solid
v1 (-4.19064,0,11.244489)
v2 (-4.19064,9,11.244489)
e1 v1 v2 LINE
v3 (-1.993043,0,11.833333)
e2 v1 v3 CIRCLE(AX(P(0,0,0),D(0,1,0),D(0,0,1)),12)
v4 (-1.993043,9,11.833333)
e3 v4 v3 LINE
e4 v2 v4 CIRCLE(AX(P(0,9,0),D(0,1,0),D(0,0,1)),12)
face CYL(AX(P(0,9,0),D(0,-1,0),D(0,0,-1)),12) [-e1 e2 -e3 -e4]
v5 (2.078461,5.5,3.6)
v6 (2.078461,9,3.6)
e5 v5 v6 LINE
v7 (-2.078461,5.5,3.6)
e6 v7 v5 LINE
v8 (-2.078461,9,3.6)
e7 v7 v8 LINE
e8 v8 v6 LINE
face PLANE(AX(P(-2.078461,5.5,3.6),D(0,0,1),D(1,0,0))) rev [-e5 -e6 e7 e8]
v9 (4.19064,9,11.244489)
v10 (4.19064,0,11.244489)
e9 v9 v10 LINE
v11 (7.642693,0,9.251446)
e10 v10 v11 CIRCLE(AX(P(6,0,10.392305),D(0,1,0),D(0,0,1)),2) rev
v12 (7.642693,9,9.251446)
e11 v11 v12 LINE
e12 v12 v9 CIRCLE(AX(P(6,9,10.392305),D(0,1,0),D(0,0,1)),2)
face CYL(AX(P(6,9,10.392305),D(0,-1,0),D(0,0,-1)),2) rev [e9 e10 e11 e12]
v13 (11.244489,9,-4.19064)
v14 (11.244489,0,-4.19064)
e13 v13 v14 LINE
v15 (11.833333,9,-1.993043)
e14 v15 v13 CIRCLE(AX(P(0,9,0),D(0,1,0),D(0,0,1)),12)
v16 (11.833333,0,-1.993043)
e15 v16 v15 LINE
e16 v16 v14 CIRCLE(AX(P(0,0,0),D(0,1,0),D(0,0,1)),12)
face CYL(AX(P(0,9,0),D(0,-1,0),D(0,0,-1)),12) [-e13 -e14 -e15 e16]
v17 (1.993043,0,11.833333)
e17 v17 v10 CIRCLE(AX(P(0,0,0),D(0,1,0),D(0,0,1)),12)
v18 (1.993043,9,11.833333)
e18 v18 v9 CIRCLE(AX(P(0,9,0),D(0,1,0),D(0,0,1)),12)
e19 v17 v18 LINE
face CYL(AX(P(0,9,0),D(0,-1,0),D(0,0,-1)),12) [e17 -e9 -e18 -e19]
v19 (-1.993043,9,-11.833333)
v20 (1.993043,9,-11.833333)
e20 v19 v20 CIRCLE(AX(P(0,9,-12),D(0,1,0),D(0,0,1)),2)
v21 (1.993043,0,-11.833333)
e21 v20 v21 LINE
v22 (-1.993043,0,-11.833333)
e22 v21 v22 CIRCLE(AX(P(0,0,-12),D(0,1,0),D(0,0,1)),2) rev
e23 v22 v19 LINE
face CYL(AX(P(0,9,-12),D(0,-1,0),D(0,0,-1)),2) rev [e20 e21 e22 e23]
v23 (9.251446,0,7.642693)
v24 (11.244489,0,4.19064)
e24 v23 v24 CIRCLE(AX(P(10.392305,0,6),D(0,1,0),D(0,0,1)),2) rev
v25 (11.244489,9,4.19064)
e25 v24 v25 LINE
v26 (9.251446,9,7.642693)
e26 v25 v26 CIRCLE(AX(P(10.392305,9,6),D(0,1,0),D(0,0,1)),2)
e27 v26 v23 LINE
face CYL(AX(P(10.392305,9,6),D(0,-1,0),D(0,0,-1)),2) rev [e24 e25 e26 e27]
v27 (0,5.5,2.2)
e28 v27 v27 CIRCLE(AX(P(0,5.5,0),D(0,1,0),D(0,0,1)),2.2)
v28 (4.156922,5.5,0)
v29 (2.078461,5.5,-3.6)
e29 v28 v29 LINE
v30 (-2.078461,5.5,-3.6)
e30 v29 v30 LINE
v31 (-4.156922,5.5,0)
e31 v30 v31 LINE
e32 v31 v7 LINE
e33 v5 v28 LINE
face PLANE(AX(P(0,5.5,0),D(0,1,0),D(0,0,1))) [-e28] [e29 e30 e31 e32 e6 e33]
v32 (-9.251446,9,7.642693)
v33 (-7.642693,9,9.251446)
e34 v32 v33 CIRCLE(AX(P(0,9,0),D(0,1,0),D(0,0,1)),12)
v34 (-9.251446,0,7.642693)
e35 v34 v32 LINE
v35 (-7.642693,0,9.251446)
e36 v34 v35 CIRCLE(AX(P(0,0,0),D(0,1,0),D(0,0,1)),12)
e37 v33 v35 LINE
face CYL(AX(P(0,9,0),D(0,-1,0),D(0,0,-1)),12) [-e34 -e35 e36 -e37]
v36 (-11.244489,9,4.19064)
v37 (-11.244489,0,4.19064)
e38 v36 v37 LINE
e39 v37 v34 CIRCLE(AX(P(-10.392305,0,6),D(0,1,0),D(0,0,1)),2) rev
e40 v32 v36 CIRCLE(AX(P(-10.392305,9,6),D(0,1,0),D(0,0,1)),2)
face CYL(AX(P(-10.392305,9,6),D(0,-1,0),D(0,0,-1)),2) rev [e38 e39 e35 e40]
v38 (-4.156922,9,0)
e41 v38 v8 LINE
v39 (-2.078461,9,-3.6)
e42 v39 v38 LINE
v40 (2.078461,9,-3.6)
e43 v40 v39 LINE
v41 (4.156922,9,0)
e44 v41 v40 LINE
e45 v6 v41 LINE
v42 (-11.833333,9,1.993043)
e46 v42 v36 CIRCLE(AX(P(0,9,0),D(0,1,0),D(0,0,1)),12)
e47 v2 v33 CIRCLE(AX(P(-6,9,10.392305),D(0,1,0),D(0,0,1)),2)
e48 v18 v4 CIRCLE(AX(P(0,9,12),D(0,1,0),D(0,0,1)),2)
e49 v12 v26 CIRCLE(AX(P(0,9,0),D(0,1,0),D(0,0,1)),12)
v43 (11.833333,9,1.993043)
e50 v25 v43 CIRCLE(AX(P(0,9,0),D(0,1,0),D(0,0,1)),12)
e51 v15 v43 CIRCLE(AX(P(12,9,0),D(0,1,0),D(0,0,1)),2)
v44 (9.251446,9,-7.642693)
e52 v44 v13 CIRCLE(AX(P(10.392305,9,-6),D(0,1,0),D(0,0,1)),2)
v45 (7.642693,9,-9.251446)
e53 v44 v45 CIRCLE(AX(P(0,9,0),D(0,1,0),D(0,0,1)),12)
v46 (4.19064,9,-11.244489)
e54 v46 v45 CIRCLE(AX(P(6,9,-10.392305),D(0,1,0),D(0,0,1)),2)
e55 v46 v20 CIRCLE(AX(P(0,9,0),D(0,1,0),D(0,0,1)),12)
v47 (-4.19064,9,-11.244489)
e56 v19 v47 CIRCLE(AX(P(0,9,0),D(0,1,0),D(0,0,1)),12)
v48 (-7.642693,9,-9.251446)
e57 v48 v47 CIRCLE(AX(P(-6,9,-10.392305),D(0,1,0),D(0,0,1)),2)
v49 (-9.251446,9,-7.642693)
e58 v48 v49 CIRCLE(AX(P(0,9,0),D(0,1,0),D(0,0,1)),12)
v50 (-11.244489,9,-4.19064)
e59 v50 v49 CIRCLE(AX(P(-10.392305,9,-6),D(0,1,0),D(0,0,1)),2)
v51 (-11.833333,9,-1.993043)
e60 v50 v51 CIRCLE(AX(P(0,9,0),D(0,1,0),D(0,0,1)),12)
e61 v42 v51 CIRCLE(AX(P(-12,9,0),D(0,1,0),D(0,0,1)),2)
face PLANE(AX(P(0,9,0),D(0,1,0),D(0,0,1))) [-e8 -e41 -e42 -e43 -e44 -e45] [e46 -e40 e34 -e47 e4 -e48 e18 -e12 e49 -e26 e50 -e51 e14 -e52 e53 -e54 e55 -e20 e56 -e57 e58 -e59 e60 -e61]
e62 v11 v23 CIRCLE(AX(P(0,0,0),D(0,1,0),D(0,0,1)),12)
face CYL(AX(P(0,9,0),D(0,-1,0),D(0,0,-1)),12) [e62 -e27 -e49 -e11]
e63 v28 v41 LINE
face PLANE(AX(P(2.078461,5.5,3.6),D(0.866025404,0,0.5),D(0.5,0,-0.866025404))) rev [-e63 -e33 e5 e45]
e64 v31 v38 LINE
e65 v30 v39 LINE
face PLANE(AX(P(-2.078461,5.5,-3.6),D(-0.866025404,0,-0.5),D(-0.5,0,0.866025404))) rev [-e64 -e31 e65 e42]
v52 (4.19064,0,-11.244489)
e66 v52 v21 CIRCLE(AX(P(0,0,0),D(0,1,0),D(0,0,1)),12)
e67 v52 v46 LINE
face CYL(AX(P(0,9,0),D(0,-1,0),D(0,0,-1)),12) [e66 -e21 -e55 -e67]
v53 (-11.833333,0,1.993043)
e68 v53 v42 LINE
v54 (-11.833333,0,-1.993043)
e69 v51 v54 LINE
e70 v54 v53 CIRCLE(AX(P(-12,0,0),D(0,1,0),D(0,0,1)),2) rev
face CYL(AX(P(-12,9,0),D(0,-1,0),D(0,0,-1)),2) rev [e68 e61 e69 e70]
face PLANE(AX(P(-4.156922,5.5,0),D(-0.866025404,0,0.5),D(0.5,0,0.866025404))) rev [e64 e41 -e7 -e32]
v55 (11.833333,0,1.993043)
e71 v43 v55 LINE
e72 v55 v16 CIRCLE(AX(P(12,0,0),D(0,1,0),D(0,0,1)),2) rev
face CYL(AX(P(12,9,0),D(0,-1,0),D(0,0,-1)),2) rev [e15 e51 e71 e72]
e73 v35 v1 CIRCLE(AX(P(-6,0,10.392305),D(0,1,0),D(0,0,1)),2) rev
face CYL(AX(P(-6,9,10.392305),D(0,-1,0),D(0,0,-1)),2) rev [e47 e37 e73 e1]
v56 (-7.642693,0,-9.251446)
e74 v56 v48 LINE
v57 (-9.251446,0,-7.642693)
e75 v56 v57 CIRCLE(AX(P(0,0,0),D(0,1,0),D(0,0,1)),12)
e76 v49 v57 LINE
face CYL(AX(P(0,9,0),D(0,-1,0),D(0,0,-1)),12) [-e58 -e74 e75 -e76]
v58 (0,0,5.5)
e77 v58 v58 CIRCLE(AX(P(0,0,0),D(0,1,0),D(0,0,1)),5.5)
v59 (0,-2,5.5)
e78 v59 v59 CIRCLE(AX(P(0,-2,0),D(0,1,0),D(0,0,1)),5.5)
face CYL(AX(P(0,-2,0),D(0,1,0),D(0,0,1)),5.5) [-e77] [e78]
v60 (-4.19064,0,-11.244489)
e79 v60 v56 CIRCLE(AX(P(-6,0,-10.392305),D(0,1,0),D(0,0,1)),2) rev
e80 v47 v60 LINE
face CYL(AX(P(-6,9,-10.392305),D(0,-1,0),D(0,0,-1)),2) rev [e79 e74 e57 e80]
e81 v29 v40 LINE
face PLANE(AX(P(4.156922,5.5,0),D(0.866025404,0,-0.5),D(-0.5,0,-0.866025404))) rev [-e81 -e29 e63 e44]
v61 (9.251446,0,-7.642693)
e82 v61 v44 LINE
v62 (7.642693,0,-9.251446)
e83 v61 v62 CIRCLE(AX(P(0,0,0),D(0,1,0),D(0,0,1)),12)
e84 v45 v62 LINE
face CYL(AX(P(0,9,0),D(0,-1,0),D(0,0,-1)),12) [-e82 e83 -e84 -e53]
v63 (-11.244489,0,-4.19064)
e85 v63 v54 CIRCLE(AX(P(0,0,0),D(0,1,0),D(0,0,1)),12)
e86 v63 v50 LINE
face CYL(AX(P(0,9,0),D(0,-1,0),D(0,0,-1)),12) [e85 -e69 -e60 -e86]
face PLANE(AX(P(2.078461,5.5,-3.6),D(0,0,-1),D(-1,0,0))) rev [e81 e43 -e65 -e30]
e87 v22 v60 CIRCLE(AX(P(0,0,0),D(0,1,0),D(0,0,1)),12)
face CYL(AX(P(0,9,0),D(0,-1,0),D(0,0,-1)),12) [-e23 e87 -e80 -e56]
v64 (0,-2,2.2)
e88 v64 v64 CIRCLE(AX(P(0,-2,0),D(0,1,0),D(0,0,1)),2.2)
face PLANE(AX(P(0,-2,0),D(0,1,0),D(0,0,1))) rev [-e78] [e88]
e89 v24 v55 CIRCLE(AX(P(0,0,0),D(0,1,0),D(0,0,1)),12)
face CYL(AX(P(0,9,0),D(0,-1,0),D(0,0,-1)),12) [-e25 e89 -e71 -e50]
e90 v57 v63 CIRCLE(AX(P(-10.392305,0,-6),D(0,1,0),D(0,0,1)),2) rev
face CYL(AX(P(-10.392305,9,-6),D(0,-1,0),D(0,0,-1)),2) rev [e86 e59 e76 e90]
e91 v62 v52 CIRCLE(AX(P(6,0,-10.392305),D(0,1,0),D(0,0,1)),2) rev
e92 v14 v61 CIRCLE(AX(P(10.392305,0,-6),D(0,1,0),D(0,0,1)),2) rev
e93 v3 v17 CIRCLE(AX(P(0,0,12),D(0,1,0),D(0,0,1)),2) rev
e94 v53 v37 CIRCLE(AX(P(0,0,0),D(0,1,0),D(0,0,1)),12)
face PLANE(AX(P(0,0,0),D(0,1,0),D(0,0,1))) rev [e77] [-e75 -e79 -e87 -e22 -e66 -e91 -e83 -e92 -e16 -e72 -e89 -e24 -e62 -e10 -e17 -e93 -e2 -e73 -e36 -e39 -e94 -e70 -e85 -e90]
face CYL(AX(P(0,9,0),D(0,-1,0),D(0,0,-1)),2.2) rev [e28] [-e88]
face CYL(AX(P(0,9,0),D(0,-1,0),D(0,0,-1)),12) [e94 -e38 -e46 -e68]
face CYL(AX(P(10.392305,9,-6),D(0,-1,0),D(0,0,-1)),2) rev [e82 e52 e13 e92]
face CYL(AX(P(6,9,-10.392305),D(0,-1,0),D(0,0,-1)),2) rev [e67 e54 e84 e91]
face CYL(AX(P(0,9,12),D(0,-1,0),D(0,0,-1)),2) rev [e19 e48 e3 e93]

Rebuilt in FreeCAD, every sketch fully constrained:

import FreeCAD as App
import Part
import Sketcher

V = App.Vector
Q = App.Units.Quantity

doc = App.newDocument("Part")
params = doc.addObject("Spreadsheet::Sheet", "Params")
for row, (alias, value) in enumerate([
    ("sketch1_diameter", "24 mm"),
    ("pad1_length", "9 mm"),
    ("sketch2_diameter", "4 mm"),
    ("sketch3_diameter", "11 mm"),
    ("pad2_length", "2 mm"),
    ("sketch4_diameter", "4.4 mm"),
    ("pocket3_length", "3.5 mm"),
], start=1):
    params.set(f"A{row}", alias)
    params.set(f"B{row}", "=" + value)
    params.setAlias(f"B{row}", alias)

body = doc.addObject("PartDesign::Body", "Body")

# Sketch on XZ plane
sketch1 = body.newObject("Sketcher::SketchObject", "Sketch")
sketch1.AttachmentSupport = (doc.getObject("XZ_Plane"), [""])
sketch1.MapMode = "FlatFace"
sketch1.addGeometry(Part.Circle(V(0, 0, 0), V(0, 0, 1), 12), False)
sketch1.addConstraint([
    Sketcher.Constraint("Coincident", 0, 3, -1, 1),
    Sketcher.Constraint("Diameter", 0, 24.0),
])
sketch1.setExpression("Constraints[1]", "Params.sketch1_diameter")
pad1 = body.newObject("PartDesign::Pad", "Pad")
pad1.Profile = sketch1
pad1.setExpression("Length", "Params.pad1_length")
pad1.Reversed = True

# Sketch on XZ plane
sketch2 = body.newObject("Sketcher::SketchObject", "Sketch001")
sketch2.AttachmentSupport = (doc.getObject("XZ_Plane"), [""])
sketch2.MapMode = "FlatFace"
sketch2.addGeometry([
    Part.Circle(V(12, 0, 0), V(0, 0, 1), 2),  # 0
    Part.Circle(V(10.4, -6, 0), V(0, 0, 1), 2),  # 1
    Part.Circle(V(6, -10.4, 0), V(0, 0, 1), 2),  # 2
    Part.Circle(V(0, -12, 0), V(0, 0, 1), 2),  # 3
    Part.Circle(V(-6, -10.4, 0), V(0, 0, 1), 2),  # 4
    Part.Circle(V(-10.4, -6, 0), V(0, 0, 1), 2),  # 5
    Part.Circle(V(-12, 0, 0), V(0, 0, 1), 2),  # 6
    Part.Circle(V(-10.4, 6, 0), V(0, 0, 1), 2),  # 7
    Part.Circle(V(-6, 10.4, 0), V(0, 0, 1), 2),  # 8
    Part.Circle(V(0, 12, 0), V(0, 0, 1), 2),  # 9
    Part.Circle(V(6, 10.4, 0), V(0, 0, 1), 2),  # 10
    Part.Circle(V(10.4, 6, 0), V(0, 0, 1), 2),  # 11
], False)
sketch2.addConstraint([
    Sketcher.Constraint("Equal", 0, 1),
    Sketcher.Constraint("Equal", 1, 2),
    Sketcher.Constraint("Equal", 2, 3),
    Sketcher.Constraint("Equal", 3, 4),
    Sketcher.Constraint("Equal", 4, 5),
    Sketcher.Constraint("Equal", 5, 6),
    Sketcher.Constraint("Equal", 6, 7),
    Sketcher.Constraint("Equal", 7, 8),
    Sketcher.Constraint("Equal", 8, 9),
    Sketcher.Constraint("Equal", 9, 10),
    Sketcher.Constraint("Equal", 10, 11),
    Sketcher.Constraint("Symmetric", 0, 3, 6, 3, -1, 1),
    Sketcher.Constraint("Symmetric", 1, 3, 7, 3, -1, 1),
    Sketcher.Constraint("Symmetric", 2, 3, 8, 3, -1, 1),
    Sketcher.Constraint("Symmetric", 3, 3, 9, 3, -1, 1),
    Sketcher.Constraint("Symmetric", 4, 3, 10, 3, -1, 1),
    Sketcher.Constraint("Symmetric", 5, 3, 11, 3, -1, 1),
    Sketcher.Constraint("Symmetric", 2, 3, 4, 3, -2),
    Sketcher.Constraint("Symmetric", 1, 3, 5, 3, -2),
    Sketcher.Constraint("PointOnObject", 0, 3, -1),
    Sketcher.Constraint("PointOnObject", 3, 3, -2),
    Sketcher.Constraint("Diameter", 0, 4.0),
    Sketcher.Constraint("DistanceX", -1, 1, 0, 3, 12.0),
    Sketcher.Constraint("DistanceY", 1, 3, -1, 1, 6.0),
    Sketcher.Constraint("DistanceX", -1, 1, 2, 3, 6.0),
    Sketcher.Constraint("DistanceY", 3, 3, -1, 1, 12.0),
    Sketcher.Constraint("DistanceX", 5, 3, 1, 3, 20.78461),
    Sketcher.Constraint("DistanceY", 4, 3, 8, 3, 20.78461),
])
sketch2.setExpression("Constraints[21]", "Params.sketch2_diameter")
pocket1 = body.newObject("PartDesign::Pocket", "Pocket")
pocket1.Profile = sketch2
pocket1.Type = "ThroughAll"
pocket1.Midplane = True

# Sketch on XZ plane
sketch3 = body.newObject("Sketcher::SketchObject", "Sketch002")
sketch3.AttachmentSupport = (doc.getObject("XZ_Plane"), [""])
sketch3.MapMode = "FlatFace"
sketch3.addGeometry(Part.Circle(V(0, 0, 0), V(0, 0, 1), 6), False)
sketch3.addConstraint([
    Sketcher.Constraint("Coincident", 0, 3, -1, 1),
    Sketcher.Constraint("Diameter", 0, 11.0),
])
sketch3.setExpression("Constraints[1]", "Params.sketch3_diameter")
pad2 = body.newObject("PartDesign::Pad", "Pad001")
pad2.Profile = sketch3
pad2.setExpression("Length", "Params.pad2_length")

# Sketch on XZ plane
sketch4 = body.newObject("Sketcher::SketchObject", "Sketch003")
sketch4.AttachmentSupport = (doc.getObject("XZ_Plane"), [""])
sketch4.MapMode = "FlatFace"
sketch4.addGeometry(Part.Circle(V(0, 0, 0), V(0, 0, 1), 2.2), False)
sketch4.addConstraint([
    Sketcher.Constraint("Coincident", 0, 3, -1, 1),
    Sketcher.Constraint("Diameter", 0, 4.4),
])
sketch4.setExpression("Constraints[1]", "Params.sketch4_diameter")
pocket2 = body.newObject("PartDesign::Pocket", "Pocket001")
pocket2.Profile = sketch4
pocket2.Type = "ThroughAll"
pocket2.Midplane = True

# Sketch on XZ plane
sketch5 = body.newObject("Sketcher::SketchObject", "Sketch004")
sketch5.AttachmentSupport = (doc.getObject("XZ_Plane"), [""])
sketch5.MapMode = "FlatFace"
sketch5.AttachmentOffset = App.Placement(V(0, 0, -9), App.Rotation())
sketch5.addGeometry([
    Part.LineSegment(V(4.2, 0, 0), V(2.1, -3.6, 0)),  # 0
    Part.LineSegment(V(2.1, -3.6, 0), V(-2.1, -3.6, 0)),  # 1
    Part.LineSegment(V(-2.1, -3.6, 0), V(-4.2, 0, 0)),  # 2
    Part.LineSegment(V(-4.2, 0, 0), V(-2.1, 3.6, 0)),  # 3
    Part.LineSegment(V(-2.1, 3.6, 0), V(2.1, 3.6, 0)),  # 4
    Part.LineSegment(V(2.1, 3.6, 0), V(4.2, 0, 0)),  # 5
], False)
sketch5.addConstraint([
    Sketcher.Constraint("Coincident", 0, 2, 1, 1),
    Sketcher.Constraint("Coincident", 1, 2, 2, 1),
    Sketcher.Constraint("Coincident", 2, 2, 3, 1),
    Sketcher.Constraint("Coincident", 3, 2, 4, 1),
    Sketcher.Constraint("Coincident", 4, 2, 5, 1),
    Sketcher.Constraint("Coincident", 5, 2, 0, 1),
    Sketcher.Constraint("Horizontal", 1),
    Sketcher.Constraint("Horizontal", 4),
    Sketcher.Constraint("Symmetric", 0, 2, 3, 2, -1, 1),
    Sketcher.Constraint("Symmetric", 2, 2, 5, 2, -1, 1),
    Sketcher.Constraint("PointOnObject", 2, 2, -1),
    Sketcher.Constraint("Parallel", 2, 5),
    Sketcher.Constraint("Vertical", 1, 2, 3, 2),
    Sketcher.Constraint("Angle", 0, Q("-120 deg")),
    Sketcher.Constraint("DistanceY", 0, 2, -1, 1, 3.6),
    Sketcher.Constraint("DistanceX", 1, 2, 1, 1, 4.156922),
])
pocket3 = body.newObject("PartDesign::Pocket", "Pocket002")
pocket3.Profile = sketch5
pocket3.setExpression("Length", "Params.pocket3_length")
pocket3.Reversed = True

doc.recompute()
